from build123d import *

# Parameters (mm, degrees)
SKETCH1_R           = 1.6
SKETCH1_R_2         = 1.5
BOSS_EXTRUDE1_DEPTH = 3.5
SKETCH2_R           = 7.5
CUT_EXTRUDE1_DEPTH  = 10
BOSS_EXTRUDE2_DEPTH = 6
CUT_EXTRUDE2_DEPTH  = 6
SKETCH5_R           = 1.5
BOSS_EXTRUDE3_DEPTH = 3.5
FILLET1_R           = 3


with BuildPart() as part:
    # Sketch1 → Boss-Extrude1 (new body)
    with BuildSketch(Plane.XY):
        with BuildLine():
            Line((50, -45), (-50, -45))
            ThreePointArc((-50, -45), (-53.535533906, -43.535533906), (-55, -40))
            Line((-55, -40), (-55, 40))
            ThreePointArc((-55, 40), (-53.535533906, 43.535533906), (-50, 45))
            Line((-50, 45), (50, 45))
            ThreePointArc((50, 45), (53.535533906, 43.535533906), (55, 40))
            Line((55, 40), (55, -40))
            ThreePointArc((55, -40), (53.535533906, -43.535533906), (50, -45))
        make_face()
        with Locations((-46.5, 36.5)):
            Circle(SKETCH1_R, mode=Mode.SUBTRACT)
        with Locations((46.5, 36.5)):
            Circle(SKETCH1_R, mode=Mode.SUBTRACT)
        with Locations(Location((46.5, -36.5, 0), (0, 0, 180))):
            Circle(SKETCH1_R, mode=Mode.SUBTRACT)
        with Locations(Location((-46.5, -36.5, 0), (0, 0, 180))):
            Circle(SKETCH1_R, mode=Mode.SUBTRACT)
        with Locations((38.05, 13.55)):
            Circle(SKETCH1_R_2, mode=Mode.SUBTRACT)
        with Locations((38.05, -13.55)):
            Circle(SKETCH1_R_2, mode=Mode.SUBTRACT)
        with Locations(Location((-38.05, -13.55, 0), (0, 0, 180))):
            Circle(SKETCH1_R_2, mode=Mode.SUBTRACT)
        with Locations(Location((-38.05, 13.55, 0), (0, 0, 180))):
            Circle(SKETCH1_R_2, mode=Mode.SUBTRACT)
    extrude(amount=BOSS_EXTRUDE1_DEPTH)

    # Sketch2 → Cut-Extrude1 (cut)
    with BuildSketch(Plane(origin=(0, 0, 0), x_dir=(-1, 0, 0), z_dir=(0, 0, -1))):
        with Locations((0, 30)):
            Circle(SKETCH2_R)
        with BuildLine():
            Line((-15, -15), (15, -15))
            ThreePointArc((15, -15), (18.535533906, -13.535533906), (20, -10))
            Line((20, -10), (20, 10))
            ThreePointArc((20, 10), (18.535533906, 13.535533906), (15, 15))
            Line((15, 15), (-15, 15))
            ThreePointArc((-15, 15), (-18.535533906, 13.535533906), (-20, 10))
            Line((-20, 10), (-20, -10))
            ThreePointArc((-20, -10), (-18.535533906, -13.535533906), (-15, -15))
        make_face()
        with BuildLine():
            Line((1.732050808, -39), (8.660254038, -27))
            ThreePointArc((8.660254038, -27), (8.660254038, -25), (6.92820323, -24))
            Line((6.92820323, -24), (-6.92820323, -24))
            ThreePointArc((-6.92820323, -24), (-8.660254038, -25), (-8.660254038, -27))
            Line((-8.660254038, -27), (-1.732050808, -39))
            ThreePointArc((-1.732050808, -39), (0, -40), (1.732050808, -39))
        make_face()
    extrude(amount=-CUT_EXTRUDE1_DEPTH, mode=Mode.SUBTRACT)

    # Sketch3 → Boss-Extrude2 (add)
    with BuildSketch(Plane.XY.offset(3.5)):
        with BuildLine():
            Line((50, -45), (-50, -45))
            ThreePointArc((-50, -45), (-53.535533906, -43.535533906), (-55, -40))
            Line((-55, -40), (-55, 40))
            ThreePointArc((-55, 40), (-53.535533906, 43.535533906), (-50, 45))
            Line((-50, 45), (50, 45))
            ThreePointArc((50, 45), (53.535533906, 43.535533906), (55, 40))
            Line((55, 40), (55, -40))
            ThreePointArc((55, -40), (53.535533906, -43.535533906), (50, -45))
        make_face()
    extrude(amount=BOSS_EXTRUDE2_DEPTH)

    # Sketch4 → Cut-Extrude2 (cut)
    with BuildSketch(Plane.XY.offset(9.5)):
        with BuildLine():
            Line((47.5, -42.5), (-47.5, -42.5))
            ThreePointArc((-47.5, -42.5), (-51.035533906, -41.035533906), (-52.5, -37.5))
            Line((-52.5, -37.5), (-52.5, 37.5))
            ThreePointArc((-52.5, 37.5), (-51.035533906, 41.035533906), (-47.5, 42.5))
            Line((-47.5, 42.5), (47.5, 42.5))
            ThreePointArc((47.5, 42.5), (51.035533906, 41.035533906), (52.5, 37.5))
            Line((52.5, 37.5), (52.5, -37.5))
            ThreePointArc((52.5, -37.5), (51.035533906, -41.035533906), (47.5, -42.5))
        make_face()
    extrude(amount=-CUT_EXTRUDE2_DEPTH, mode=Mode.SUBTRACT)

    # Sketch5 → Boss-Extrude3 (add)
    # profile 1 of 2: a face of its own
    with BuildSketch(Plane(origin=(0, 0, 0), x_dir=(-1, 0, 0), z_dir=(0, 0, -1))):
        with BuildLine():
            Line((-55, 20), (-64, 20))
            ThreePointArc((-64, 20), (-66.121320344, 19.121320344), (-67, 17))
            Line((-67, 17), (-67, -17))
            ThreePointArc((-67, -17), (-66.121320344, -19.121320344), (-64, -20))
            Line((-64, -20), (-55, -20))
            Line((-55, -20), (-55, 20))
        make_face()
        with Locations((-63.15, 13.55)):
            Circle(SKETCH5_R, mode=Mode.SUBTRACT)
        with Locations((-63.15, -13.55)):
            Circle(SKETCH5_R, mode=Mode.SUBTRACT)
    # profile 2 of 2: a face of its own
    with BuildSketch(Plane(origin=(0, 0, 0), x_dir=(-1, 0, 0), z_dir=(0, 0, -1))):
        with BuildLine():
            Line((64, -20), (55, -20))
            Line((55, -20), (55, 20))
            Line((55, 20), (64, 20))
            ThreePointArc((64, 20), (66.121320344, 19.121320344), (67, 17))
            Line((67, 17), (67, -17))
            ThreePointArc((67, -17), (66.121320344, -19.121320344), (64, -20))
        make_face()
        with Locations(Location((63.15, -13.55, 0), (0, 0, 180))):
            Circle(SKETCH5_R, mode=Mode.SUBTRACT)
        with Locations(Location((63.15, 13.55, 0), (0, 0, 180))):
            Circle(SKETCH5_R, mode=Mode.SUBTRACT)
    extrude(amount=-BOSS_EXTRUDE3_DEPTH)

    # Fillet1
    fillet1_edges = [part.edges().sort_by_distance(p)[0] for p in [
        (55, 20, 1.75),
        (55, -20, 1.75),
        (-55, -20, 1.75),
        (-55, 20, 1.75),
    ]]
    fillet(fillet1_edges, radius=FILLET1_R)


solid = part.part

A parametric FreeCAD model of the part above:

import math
import FreeCAD as App
import Part
import Sketcher

V = App.Vector
Q = App.Units.Quantity


def edges_at(feature, points):
    """Names of the edges that pass closest to the given points."""
    edges = feature.Shape.Edges
    near = lambda p: min(range(len(edges)), key=lambda i: edges[i].distToShape(Part.Vertex(*p))[0])
    return sorted({f"Edge{near(p) + 1}" for p in points})

doc = App.newDocument("Part")
params = doc.addObject("Spreadsheet::Sheet", "Params")
for row, (alias, value) in enumerate([
    ("sketch1_diameter", "3 mm"),
    ("sketch1_radius", "5 mm"),
    ("sketch1_diameter2", "3.2 mm"),
    ("sketch1_width", "100 mm"),
    ("sketch1_height", "80 mm"),
    ("pad1_length", "3.5 mm"),
    ("sketch2_diameter", "15 mm"),
    ("sketch2_radius", "5 mm"),
    ("sketch2_radius2", "2 mm"),
    ("sketch2_width", "30 mm"),
    ("sketch2_height", "20 mm"),
    ("pocket1_length", "10 mm"),
    ("sketch3_radius", "5 mm"),
    ("sketch3_width", "100 mm"),
    ("sketch3_height", "80 mm"),
    ("pad2_length", "6 mm"),
    ("sketch4_radius", "5 mm"),
    ("sketch4_width", "95 mm"),
    ("sketch4_height", "75 mm"),
    ("pocket2_length", "6 mm"),
    ("sketch5_diameter", "3 mm"),
    ("sketch5_radius", "3 mm"),
    ("sketch5_width", "9 mm"),
    ("sketch5_height", "34 mm"),
    ("pad3_length", "3.5 mm"),
    ("fillet_radius", "3 mm"),
], start=1):
    params.set(f"A{row}", alias)
    params.set(f"B{row}", "=" + value)
    params.setAlias(f"B{row}", alias)

body = doc.addObject("PartDesign::Body", "Body")

# Sketch on XY plane
sketch1 = body.newObject("Sketcher::SketchObject", "Sketch")
sketch1.AttachmentSupport = (doc.getObject("XY_Plane"), [""])
sketch1.MapMode = "FlatFace"
sketch1.addGeometry([
    Part.LineSegment(V(-50, -45, 0), V(50, -45, 0)),  # 0
    Part.ArcOfCircle(Part.Circle(V(50, -40, 0), V(0, 0, 1), 5), math.radians(-90), math.radians(0)),  # 1
    Part.LineSegment(V(55, -40, 0), V(55, 40, 0)),  # 2
    Part.ArcOfCircle(Part.Circle(V(50, 40, 0), V(0, 0, 1), 5), math.radians(0), math.radians(90)),  # 3
    Part.LineSegment(V(50, 45, 0), V(-50, 45, 0)),  # 4
    Part.ArcOfCircle(Part.Circle(V(-50, 40, 0), V(0, 0, 1), 5), math.radians(90), math.radians(180)),  # 5
    Part.LineSegment(V(-55, 40, 0), V(-55, -40, 0)),  # 6
    Part.ArcOfCircle(Part.Circle(V(-50, -40, 0), V(0, 0, 1), 5), math.radians(180), math.radians(270)),  # 7
    Part.Circle(V(46.5, -36.5, 0), V(0, 0, 1), 1.6),  # 8
    Part.Circle(V(38, -13.6, 0), V(0, 0, 1), 1.5),  # 9
    Part.Circle(V(-46.5, -36.5, 0), V(0, 0, 1), 1.6),  # 10
    Part.Circle(V(-38, -13.6, 0), V(0, 0, 1), 1.5),  # 11
    Part.Circle(V(38, 13.6, 0), V(0, 0, 1), 1.5),  # 12
    Part.Circle(V(46.5, 36.5, 0), V(0, 0, 1), 1.6),  # 13
    Part.Circle(V(-38, 13.6, 0), V(0, 0, 1), 1.5),  # 14
    Part.Circle(V(-46.5, 36.5, 0), V(0, 0, 1), 1.6),  # 15
], False)
sketch1.addConstraint([
    Sketcher.Constraint("Tangent", 0, 2, 1, 1),
    Sketcher.Constraint("Tangent", 1, 2, 2, 1),
    Sketcher.Constraint("Tangent", 2, 2, 3, 1),
    Sketcher.Constraint("Tangent", 3, 2, 4, 1),
    Sketcher.Constraint("Tangent", 4, 2, 5, 1),
    Sketcher.Constraint("Tangent", 5, 2, 6, 1),
    Sketcher.Constraint("Tangent", 6, 2, 7, 1),
    Sketcher.Constraint("Tangent", 7, 2, 0, 1),
    Sketcher.Constraint("Horizontal", 0),
    Sketcher.Constraint("Vertical", 2),
    Sketcher.Constraint("Horizontal", 4),
    Sketcher.Constraint("Vertical", 6),
    Sketcher.Constraint("Equal", 1, 3),
    Sketcher.Constraint("Equal", 3, 5),
    Sketcher.Constraint("Equal", 5, 7),
    Sketcher.Constraint("Equal", 8, 10),
    Sketcher.Constraint("Equal", 9, 11),
    Sketcher.Constraint("Equal", 11, 12),
    Sketcher.Constraint("Equal", 10, 13),
    Sketcher.Constraint("Equal", 12, 14),
    Sketcher.Constraint("Equal", 13, 15),
    Sketcher.Constraint("Symmetric", 1, 3, 5, 3, -1, 1),
    Sketcher.Constraint("Symmetric", 11, 3, 12, 3, -1, 1),
    Sketcher.Constraint("Symmetric", 10, 3, 13, 3, -1, 1),
    Sketcher.Constraint("Symmetric", 9, 3, 14, 3, -1, 1),
    Sketcher.Constraint("Symmetric", 8, 3, 15, 3, -1, 1),
    Sketcher.Constraint("Symmetric", 8, 3, 10, 3, -2),
    Sketcher.Constraint("Symmetric", 9, 3, 11, 3, -2),
    Sketcher.Constraint("Diameter", 9, 3.0),
    Sketcher.Constraint("Radius", 1, 5.0),
    Sketcher.Constraint("Diameter", 8, 3.2),
    Sketcher.Constraint("DistanceX", 0, 1, 0, 2, 100.0),
    Sketcher.Constraint("DistanceY", 2, 1, 2, 2, 80.0),
    Sketcher.Constraint("DistanceX", 10, 3, 8, 3, 93.0),
    Sketcher.Constraint("DistanceY", 8, 3, 13, 3, 73.0),
    Sketcher.Constraint("DistanceX", 11, 3, 9, 3, 76.1),
    Sketcher.Constraint("DistanceY", 9, 3, 12, 3, 27.1),
])
sketch1.setExpression("Constraints[28]", "Params.sketch1_diameter")
sketch1.setExpression("Constraints[29]", "Params.sketch1_radius")
sketch1.setExpression("Constraints[30]", "Params.sketch1_diameter2")
sketch1.setExpression("Constraints[31]", "Params.sketch1_width")
sketch1.setExpression("Constraints[32]", "Params.sketch1_height")
pad1 = body.newObject("PartDesign::Pad", "Pad")
pad1.Profile = sketch1
pad1.setExpression("Length", "Params.pad1_length")

# Sketch on XY plane
sketch2 = body.newObject("Sketcher::SketchObject", "Sketch001")
sketch2.AttachmentSupport = (doc.getObject("XY_Plane"), [""])
sketch2.MapMode = "FlatFace"
sketch2.addGeometry([
    Part.Circle(V(0, 30, 0), V(0, 0, 1), 7.5),  # 0
    Part.LineSegment(V(15, -15, 0), V(-15, -15, 0)),  # 1
    Part.ArcOfCircle(Part.Circle(V(-15, -10, 0), V(0, 0, 1), 5), math.radians(180), math.radians(270)),  # 2
    Part.LineSegment(V(-20, -10, 0), V(-20, 10, 0)),  # 3
    Part.ArcOfCircle(Part.Circle(V(-15, 10, 0), V(0, 0, 1), 5), math.radians(90), math.radians(180)),  # 4
    Part.LineSegment(V(-15, 15, 0), V(15, 15, 0)),  # 5
    Part.ArcOfCircle(Part.Circle(V(15, 10, 0), V(0, 0, 1), 5), math.radians(0), math.radians(90)),  # 6
    Part.LineSegment(V(20, 10, 0), V(20, -10, 0)),  # 7
    Part.ArcOfCircle(Part.Circle(V(15, -10, 0), V(0, 0, 1), 5), math.radians(-90), math.radians(0)),  # 8
    Part.LineSegment(V(-1.7, -39, 0), V(-8.7, -27, 0)),  # 9
    Part.ArcOfCircle(Part.Circle(V(-6.9, -26, 0), V(0, 0, 1), 2), math.radians(90), math.radians(210)),  # 10
    Part.LineSegment(V(-6.9, -24, 0), V(6.9, -24, 0)),  # 11
    Part.ArcOfCircle(Part.Circle(V(6.9, -26, 0), V(0, 0, 1), 2), math.radians(-30), math.radians(90)),  # 12
    Part.LineSegment(V(8.7, -27, 0), V(1.7, -39, 0)),  # 13
    Part.ArcOfCircle(Part.Circle(V(0, -38, 0), V(0, 0, 1), 2), math.radians(-150), math.radians(-30)),  # 14
], False)
sketch2.addConstraint([
    Sketcher.Constraint("Tangent", 1, 2, 2, 2),
    Sketcher.Constraint("Tangent", 2, 1, 3, 1),
    Sketcher.Constraint("Tangent", 3, 2, 4, 2),
    Sketcher.Constraint("Tangent", 4, 1, 5, 1),
    Sketcher.Constraint("Tangent", 5, 2, 6, 2),
    Sketcher.Constraint("Tangent", 6, 1, 7, 1),
    Sketcher.Constraint("Tangent", 7, 2, 8, 2),
    Sketcher.Constraint("Tangent", 8, 1, 1, 1),
    Sketcher.Constraint("Tangent", 9, 2, 10, 2),
    Sketcher.Constraint("Tangent", 10, 1, 11, 1),
    Sketcher.Constraint("Tangent", 11, 2, 12, 2),
    Sketcher.Constraint("Tangent", 12, 1, 13, 1),
    Sketcher.Constraint("Tangent", 13, 2, 14, 2),
    Sketcher.Constraint("Tangent", 14, 1, 9, 1),
    Sketcher.Constraint("Horizontal", 1),
    Sketcher.Constraint("Vertical", 3),
    Sketcher.Constraint("Horizontal", 5),
    Sketcher.Constraint("Vertical", 7),
    Sketcher.Constraint("Horizontal", 11),
    Sketcher.Constraint("Equal", 2, 4),
    Sketcher.Constraint("Equal", 4, 6),
    Sketcher.Constraint("Equal", 6, 8),
    Sketcher.Constraint("Equal", 10, 12),
    Sketcher.Constraint("Equal", 12, 14),
    Sketcher.Constraint("Symmetric", 2, 3, 6, 3, -1, 1),
    Sketcher.Constraint("Symmetric", 9, 2, 12, 1, -2),
    Sketcher.Constraint("PointOnObject", 0, 3, -2),
    Sketcher.Constraint("Diameter", 0, 15.0),
    Sketcher.Constraint("Radius", 2, 5.0),
    Sketcher.Constraint("Radius", 10, 2.0),
    Sketcher.Constraint("DistanceX", 1, 2, 1, 1, 30.0),
    Sketcher.Constraint("DistanceY", 3, 1, 3, 2, 20.0),
    Sketcher.Constraint("Angle", 9, Q("120 deg")),
    Sketcher.Constraint("DistanceY", -1, 1, 0, 3, 30.0),
    Sketcher.Constraint("DistanceY", 10, 3, -1, 1, 26.0),
    Sketcher.Constraint("DistanceY", 14, 3, -1, 1, 38.0),
])
sketch2.setExpression("Constraints[27]", "Params.sketch2_diameter")
sketch2.setExpression("Constraints[28]", "Params.sketch2_radius")
sketch2.setExpression("Constraints[29]", "Params.sketch2_radius2")
sketch2.setExpression("Constraints[30]", "Params.sketch2_width")
sketch2.setExpression("Constraints[31]", "Params.sketch2_height")
pocket1 = body.newObject("PartDesign::Pocket", "Pocket")
pocket1.Profile = sketch2
pocket1.setExpression("Length", "Params.pocket1_length")
pocket1.Reversed = True

# Sketch on XY plane
sketch3 = body.newObject("Sketcher::SketchObject", "Sketch002")
sketch3.AttachmentSupport = (doc.getObject("XY_Plane"), [""])
sketch3.MapMode = "FlatFace"
sketch3.AttachmentOffset = App.Placement(V(0, 0, 3.5), App.Rotation())
sketch3.addGeometry([
    Part.LineSegment(V(-50, -45, 0), V(50, -45, 0)),  # 0
    Part.ArcOfCircle(Part.Circle(V(50, -40, 0), V(0, 0, 1), 5), math.radians(-90), math.radians(0)),  # 1
    Part.LineSegment(V(55, -40, 0), V(55, 40, 0)),  # 2
    Part.ArcOfCircle(Part.Circle(V(50, 40, 0), V(0, 0, 1), 5), math.radians(0), math.radians(90)),  # 3
    Part.LineSegment(V(50, 45, 0), V(-50, 45, 0)),  # 4
    Part.ArcOfCircle(Part.Circle(V(-50, 40, 0), V(0, 0, 1), 5), math.radians(90), math.radians(180)),  # 5
    Part.LineSegment(V(-55, 40, 0), V(-55, -40, 0)),  # 6
    Part.ArcOfCircle(Part.Circle(V(-50, -40, 0), V(0, 0, 1), 5), math.radians(180), math.radians(270)),  # 7
], False)
sketch3.addConstraint([
    Sketcher.Constraint("Tangent", 0, 2, 1, 1),
    Sketcher.Constraint("Tangent", 1, 2, 2, 1),
    Sketcher.Constraint("Tangent", 2, 2, 3, 1),
    Sketcher.Constraint("Tangent", 3, 2, 4, 1),
    Sketcher.Constraint("Tangent", 4, 2, 5, 1),
    Sketcher.Constraint("Tangent", 5, 2, 6, 1),
    Sketcher.Constraint("Tangent", 6, 2, 7, 1),
    Sketcher.Constraint("Tangent", 7, 2, 0, 1),
    Sketcher.Constraint("Horizontal", 0),
    Sketcher.Constraint("Vertical", 2),
    Sketcher.Constraint("Horizontal", 4),
    Sketcher.Constraint("Vertical", 6),
    Sketcher.Constraint("Equal", 1, 3),
    Sketcher.Constraint("Equal", 3, 5),
    Sketcher.Constraint("Equal", 5, 7),
    Sketcher.Constraint("Symmetric", 1, 3, 5, 3, -1, 1),
    Sketcher.Constraint("Radius", 1, 5.0),
    Sketcher.Constraint("DistanceX", 0, 1, 0, 2, 100.0),
    Sketcher.Constraint("DistanceY", 2, 1, 2, 2, 80.0),
])
sketch3.setExpression("Constraints[16]", "Params.sketch3_radius")
sketch3.setExpression("Constraints[17]", "Params.sketch3_width")
sketch3.setExpression("Constraints[18]", "Params.sketch3_height")
pad2 = body.newObject("PartDesign::Pad", "Pad001")
pad2.Profile = sketch3
pad2.setExpression("Length", "Params.pad2_length")

# Sketch on XY plane
sketch4 = body.newObject("Sketcher::SketchObject", "Sketch003")
sketch4.AttachmentSupport = (doc.getObject("XY_Plane"), [""])
sketch4.MapMode = "FlatFace"
sketch4.AttachmentOffset = App.Placement(V(0, 0, 9.5), App.Rotation())
sketch4.addGeometry([
    Part.LineSegment(V(-48, -42, 0), V(48, -42, 0)),  # 0
    Part.ArcOfCircle(Part.Circle(V(48, -38, 0), V(0, 0, 1), 5), math.radians(-90), math.radians(0)),  # 1
    Part.LineSegment(V(52, -38, 0), V(52, 38, 0)),  # 2
    Part.ArcOfCircle(Part.Circle(V(48, 38, 0), V(0, 0, 1), 5), math.radians(0), math.radians(90)),  # 3
    Part.LineSegment(V(48, 42, 0), V(-48, 42, 0)),  # 4
    Part.ArcOfCircle(Part.Circle(V(-48, 38, 0), V(0, 0, 1), 5), math.radians(90), math.radians(180)),  # 5
    Part.LineSegment(V(-52, 38, 0), V(-52, -38, 0)),  # 6
    Part.ArcOfCircle(Part.Circle(V(-48, -38, 0), V(0, 0, 1), 5), math.radians(180), math.radians(270)),  # 7
], False)
sketch4.addConstraint([
    Sketcher.Constraint("Tangent", 0, 2, 1, 1),
    Sketcher.Constraint("Tangent", 1, 2, 2, 1),
    Sketcher.Constraint("Tangent", 2, 2, 3, 1),
    Sketcher.Constraint("Tangent", 3, 2, 4, 1),
    Sketcher.Constraint("Tangent", 4, 2, 5, 1),
    Sketcher.Constraint("Tangent", 5, 2, 6, 1),
    Sketcher.Constraint("Tangent", 6, 2, 7, 1),
    Sketcher.Constraint("Tangent", 7, 2, 0, 1),
    Sketcher.Constraint("Horizontal", 0),
    Sketcher.Constraint("Vertical", 2),
    Sketcher.Constraint("Horizontal", 4),
    Sketcher.Constraint("Vertical", 6),
    Sketcher.Constraint("Equal", 1, 3),
    Sketcher.Constraint("Equal", 3, 5),
    Sketcher.Constraint("Equal", 5, 7),
    Sketcher.Constraint("Symmetric", 1, 3, 5, 3, -1, 1),
    Sketcher.Constraint("Radius", 1, 5.0),
    Sketcher.Constraint("DistanceX", 0, 1, 0, 2, 95.0),
    Sketcher.Constraint("DistanceY", 2, 1, 2, 2, 75.0),
])
sketch4.setExpression("Constraints[16]", "Params.sketch4_radius")
sketch4.setExpression("Constraints[17]", "Params.sketch4_width")
sketch4.setExpression("Constraints[18]", "Params.sketch4_height")
pocket2 = body.newObject("PartDesign::Pocket", "Pocket001")
pocket2.Profile = sketch4
pocket2.setExpression("Length", "Params.pocket2_length")

# Sketch on XY plane
sketch5 = body.newObject("Sketcher::SketchObject", "Sketch004")
sketch5.AttachmentSupport = (doc.getObject("XY_Plane"), [""])
sketch5.MapMode = "FlatFace"
sketch5.addGeometry([
    Part.LineSegment(V(55, 20, 0), V(64, 20, 0)),  # 0
    Part.ArcOfCircle(Part.Circle(V(64, 17, 0), V(0, 0, 1), 3), math.radians(0), math.radians(90)),  # 1
    Part.LineSegment(V(67, 17, 0), V(67, -17, 0)),  # 2
    Part.ArcOfCircle(Part.Circle(V(64, -17, 0), V(0, 0, 1), 3), math.radians(-90), math.radians(0)),  # 3
    Part.LineSegment(V(64, -20, 0), V(55, -20, 0)),  # 4
    Part.LineSegment(V(55, -20, 0), V(55, 20, 0)),  # 5
    Part.Circle(V(63.1, -13.6, 0), V(0, 0, 1), 1.5),  # 6
    Part.Circle(V(63.1, 13.6, 0), V(0, 0, 1), 1.5),  # 7
    Part.LineSegment(V(-55, -20, 0), V(-64, -20, 0)),  # 8
    Part.ArcOfCircle(Part.Circle(V(-64, -17, 0), V(0, 0, 1), 3), math.radians(180), math.radians(270)),  # 9
    Part.LineSegment(V(-67, -17, 0), V(-67, 17, 0)),  # 10
    Part.ArcOfCircle(Part.Circle(V(-64, 17, 0), V(0, 0, 1), 3), math.radians(90), math.radians(180)),  # 11
    Part.LineSegment(V(-64, 20, 0), V(-55, 20, 0)),  # 12
    Part.LineSegment(V(-55, 20, 0), V(-55, -20, 0)),  # 13
    Part.Circle(V(-63.1, -13.6, 0), V(0, 0, 1), 1.5),  # 14
    Part.Circle(V(-63.1, 13.6, 0), V(0, 0, 1), 1.5),  # 15
], False)
sketch5.addConstraint([
    Sketcher.Constraint("Tangent", 0, 2, 1, 2),
    Sketcher.Constraint("Tangent", 1, 1, 2, 1),
    Sketcher.Constraint("Tangent", 2, 2, 3, 2),
    Sketcher.Constraint("Tangent", 3, 1, 4, 1),
    Sketcher.Constraint("Coincident", 4, 2, 5, 1),
    Sketcher.Constraint("Coincident", 5, 2, 0, 1),
    Sketcher.Constraint("Tangent", 8, 2, 9, 2),
    Sketcher.Constraint("Tangent", 9, 1, 10, 1),
    Sketcher.Constraint("Tangent", 10, 2, 11, 2),
    Sketcher.Constraint("Tangent", 11, 1, 12, 1),
    Sketcher.Constraint("Coincident", 12, 2, 13, 1),
    Sketcher.Constraint("Coincident", 13, 2, 8, 1),
    Sketcher.Constraint("Horizontal", 0),
    Sketcher.Constraint("Vertical", 2),
    Sketcher.Constraint("Horizontal", 4),
    Sketcher.Constraint("Vertical", 5),
    Sketcher.Constraint("Horizontal", 8),
    Sketcher.Constraint("Vertical", 10),
    Sketcher.Constraint("Horizontal", 12),
    Sketcher.Constraint("Vertical", 13),
    Sketcher.Constraint("Equal", 1, 3),
    Sketcher.Constraint("Equal", 6, 7),
    Sketcher.Constraint("Equal", 3, 9),
    Sketcher.Constraint("Equal", 9, 11),
    Sketcher.Constraint("Equal", 7, 14),
    Sketcher.Constraint("Equal", 14, 15),
    Sketcher.Constraint("Symmetric", 1, 3, 9, 3, -1, 1),
    Sketcher.Constraint("Symmetric", 7, 3, 14, 3, -1, 1),
    Sketcher.Constraint("Symmetric", 6, 3, 15, 3, -1, 1),
    Sketcher.Constraint("Symmetric", 4, 2, 12, 2, -1, 1),
    Sketcher.Constraint("Symmetric", 6, 3, 14, 3, -2),
    Sketcher.Constraint("Horizontal", 3, 3, 9, 3),
    Sketcher.Constraint("Diameter", 6, 3.0),
    Sketcher.Constraint("Radius", 1, 3.0),
    Sketcher.Constraint("DistanceX", 0, 1, 0, 2, 9.0),
    Sketcher.Constraint("DistanceY", 2, 2, 2, 1, 34.0),
    Sketcher.Constraint("DistanceX", -1, 1, 1, 3, 64.0),
    Sketcher.Constraint("DistanceY", 6, 3, 7, 3, 27.1),
    Sketcher.Constraint("DistanceX", 14, 3, 6, 3, 126.3),
])
sketch5.setExpression("Constraints[32]", "Params.sketch5_diameter")
sketch5.setExpression("Constraints[33]", "Params.sketch5_radius")
sketch5.setExpression("Constraints[34]", "Params.sketch5_width")
sketch5.setExpression("Constraints[35]", "Params.sketch5_height")
pad3 = body.newObject("PartDesign::Pad", "Pad002")
pad3.Profile = sketch5
pad3.setExpression("Length", "Params.pad3_length")
doc.recompute()

fillet = body.newObject("PartDesign::Fillet", "Fillet")
fillet.Base = (pad3, edges_at(pad3, [
    (55, 20, 1.75),
    (55, -20, 1.75),
    (-55, -20, 1.75),
    (-55, 20, 1.75),
]))
fillet.setExpression("Radius", "Params.fillet_radius")

doc.recompute()
